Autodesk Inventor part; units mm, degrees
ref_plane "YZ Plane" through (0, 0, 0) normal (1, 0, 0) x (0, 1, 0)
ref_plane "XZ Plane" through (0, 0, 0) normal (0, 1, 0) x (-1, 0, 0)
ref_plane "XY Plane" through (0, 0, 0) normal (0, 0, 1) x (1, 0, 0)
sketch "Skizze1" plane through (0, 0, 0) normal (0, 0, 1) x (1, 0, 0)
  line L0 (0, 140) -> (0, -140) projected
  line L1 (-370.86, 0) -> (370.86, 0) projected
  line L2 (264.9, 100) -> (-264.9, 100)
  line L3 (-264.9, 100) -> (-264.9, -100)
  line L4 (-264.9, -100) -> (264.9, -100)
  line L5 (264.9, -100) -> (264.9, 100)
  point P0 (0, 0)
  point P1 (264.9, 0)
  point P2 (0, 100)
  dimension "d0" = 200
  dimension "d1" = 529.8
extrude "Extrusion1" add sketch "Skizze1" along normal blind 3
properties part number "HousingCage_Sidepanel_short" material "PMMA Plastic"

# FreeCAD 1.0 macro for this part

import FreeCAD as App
import Part
import Sketcher

doc = App.newDocument("Part")
body = doc.addObject("PartDesign::Body", "Body")

sketch1 = doc.addObject("Sketcher::SketchObject", "Sketch")
body.addObject(sketch1)
sketch1.AttachmentSupport = (doc.XY_Plane, [""])
sketch1.MapMode = "FlatFace"
sketch1.addGeometry([
    Part.LineSegment(App.Vector(264.9, 100, 0), App.Vector(-264.9, 100, 0)),
    Part.LineSegment(App.Vector(-264.9, 100, 0), App.Vector(-264.9, -100, 0)),
    Part.LineSegment(App.Vector(-264.9, -100, 0), App.Vector(264.9, -100, 0)),
    Part.LineSegment(App.Vector(264.9, -100, 0), App.Vector(264.9, 100, 0)),
], False)
sketch1.addConstraint([
    Sketcher.Constraint("Coincident", 0, 2, 1, 1),
    Sketcher.Constraint("Coincident", 1, 2, 2, 1),
    Sketcher.Constraint("Coincident", 2, 2, 3, 1),
    Sketcher.Constraint("Coincident", 3, 2, 0, 1),
    Sketcher.Constraint("Horizontal", 0),
    Sketcher.Constraint("Vertical", 1),
    Sketcher.Constraint("Horizontal", 2),
    Sketcher.Constraint("Vertical", 3),
    Sketcher.Constraint("Symmetric", 0, 2, 2, 2, -1, 1),
    Sketcher.Constraint("DistanceY", 1, 2, 1, 1, 200.0),
    Sketcher.Constraint("DistanceX", 0, 2, 0, 1, 529.8),
])
pad1 = doc.addObject("PartDesign::Pad", "Pad")
body.addObject(pad1)
pad1.Profile = sketch1
pad1.Length = 3

doc.recompute()
